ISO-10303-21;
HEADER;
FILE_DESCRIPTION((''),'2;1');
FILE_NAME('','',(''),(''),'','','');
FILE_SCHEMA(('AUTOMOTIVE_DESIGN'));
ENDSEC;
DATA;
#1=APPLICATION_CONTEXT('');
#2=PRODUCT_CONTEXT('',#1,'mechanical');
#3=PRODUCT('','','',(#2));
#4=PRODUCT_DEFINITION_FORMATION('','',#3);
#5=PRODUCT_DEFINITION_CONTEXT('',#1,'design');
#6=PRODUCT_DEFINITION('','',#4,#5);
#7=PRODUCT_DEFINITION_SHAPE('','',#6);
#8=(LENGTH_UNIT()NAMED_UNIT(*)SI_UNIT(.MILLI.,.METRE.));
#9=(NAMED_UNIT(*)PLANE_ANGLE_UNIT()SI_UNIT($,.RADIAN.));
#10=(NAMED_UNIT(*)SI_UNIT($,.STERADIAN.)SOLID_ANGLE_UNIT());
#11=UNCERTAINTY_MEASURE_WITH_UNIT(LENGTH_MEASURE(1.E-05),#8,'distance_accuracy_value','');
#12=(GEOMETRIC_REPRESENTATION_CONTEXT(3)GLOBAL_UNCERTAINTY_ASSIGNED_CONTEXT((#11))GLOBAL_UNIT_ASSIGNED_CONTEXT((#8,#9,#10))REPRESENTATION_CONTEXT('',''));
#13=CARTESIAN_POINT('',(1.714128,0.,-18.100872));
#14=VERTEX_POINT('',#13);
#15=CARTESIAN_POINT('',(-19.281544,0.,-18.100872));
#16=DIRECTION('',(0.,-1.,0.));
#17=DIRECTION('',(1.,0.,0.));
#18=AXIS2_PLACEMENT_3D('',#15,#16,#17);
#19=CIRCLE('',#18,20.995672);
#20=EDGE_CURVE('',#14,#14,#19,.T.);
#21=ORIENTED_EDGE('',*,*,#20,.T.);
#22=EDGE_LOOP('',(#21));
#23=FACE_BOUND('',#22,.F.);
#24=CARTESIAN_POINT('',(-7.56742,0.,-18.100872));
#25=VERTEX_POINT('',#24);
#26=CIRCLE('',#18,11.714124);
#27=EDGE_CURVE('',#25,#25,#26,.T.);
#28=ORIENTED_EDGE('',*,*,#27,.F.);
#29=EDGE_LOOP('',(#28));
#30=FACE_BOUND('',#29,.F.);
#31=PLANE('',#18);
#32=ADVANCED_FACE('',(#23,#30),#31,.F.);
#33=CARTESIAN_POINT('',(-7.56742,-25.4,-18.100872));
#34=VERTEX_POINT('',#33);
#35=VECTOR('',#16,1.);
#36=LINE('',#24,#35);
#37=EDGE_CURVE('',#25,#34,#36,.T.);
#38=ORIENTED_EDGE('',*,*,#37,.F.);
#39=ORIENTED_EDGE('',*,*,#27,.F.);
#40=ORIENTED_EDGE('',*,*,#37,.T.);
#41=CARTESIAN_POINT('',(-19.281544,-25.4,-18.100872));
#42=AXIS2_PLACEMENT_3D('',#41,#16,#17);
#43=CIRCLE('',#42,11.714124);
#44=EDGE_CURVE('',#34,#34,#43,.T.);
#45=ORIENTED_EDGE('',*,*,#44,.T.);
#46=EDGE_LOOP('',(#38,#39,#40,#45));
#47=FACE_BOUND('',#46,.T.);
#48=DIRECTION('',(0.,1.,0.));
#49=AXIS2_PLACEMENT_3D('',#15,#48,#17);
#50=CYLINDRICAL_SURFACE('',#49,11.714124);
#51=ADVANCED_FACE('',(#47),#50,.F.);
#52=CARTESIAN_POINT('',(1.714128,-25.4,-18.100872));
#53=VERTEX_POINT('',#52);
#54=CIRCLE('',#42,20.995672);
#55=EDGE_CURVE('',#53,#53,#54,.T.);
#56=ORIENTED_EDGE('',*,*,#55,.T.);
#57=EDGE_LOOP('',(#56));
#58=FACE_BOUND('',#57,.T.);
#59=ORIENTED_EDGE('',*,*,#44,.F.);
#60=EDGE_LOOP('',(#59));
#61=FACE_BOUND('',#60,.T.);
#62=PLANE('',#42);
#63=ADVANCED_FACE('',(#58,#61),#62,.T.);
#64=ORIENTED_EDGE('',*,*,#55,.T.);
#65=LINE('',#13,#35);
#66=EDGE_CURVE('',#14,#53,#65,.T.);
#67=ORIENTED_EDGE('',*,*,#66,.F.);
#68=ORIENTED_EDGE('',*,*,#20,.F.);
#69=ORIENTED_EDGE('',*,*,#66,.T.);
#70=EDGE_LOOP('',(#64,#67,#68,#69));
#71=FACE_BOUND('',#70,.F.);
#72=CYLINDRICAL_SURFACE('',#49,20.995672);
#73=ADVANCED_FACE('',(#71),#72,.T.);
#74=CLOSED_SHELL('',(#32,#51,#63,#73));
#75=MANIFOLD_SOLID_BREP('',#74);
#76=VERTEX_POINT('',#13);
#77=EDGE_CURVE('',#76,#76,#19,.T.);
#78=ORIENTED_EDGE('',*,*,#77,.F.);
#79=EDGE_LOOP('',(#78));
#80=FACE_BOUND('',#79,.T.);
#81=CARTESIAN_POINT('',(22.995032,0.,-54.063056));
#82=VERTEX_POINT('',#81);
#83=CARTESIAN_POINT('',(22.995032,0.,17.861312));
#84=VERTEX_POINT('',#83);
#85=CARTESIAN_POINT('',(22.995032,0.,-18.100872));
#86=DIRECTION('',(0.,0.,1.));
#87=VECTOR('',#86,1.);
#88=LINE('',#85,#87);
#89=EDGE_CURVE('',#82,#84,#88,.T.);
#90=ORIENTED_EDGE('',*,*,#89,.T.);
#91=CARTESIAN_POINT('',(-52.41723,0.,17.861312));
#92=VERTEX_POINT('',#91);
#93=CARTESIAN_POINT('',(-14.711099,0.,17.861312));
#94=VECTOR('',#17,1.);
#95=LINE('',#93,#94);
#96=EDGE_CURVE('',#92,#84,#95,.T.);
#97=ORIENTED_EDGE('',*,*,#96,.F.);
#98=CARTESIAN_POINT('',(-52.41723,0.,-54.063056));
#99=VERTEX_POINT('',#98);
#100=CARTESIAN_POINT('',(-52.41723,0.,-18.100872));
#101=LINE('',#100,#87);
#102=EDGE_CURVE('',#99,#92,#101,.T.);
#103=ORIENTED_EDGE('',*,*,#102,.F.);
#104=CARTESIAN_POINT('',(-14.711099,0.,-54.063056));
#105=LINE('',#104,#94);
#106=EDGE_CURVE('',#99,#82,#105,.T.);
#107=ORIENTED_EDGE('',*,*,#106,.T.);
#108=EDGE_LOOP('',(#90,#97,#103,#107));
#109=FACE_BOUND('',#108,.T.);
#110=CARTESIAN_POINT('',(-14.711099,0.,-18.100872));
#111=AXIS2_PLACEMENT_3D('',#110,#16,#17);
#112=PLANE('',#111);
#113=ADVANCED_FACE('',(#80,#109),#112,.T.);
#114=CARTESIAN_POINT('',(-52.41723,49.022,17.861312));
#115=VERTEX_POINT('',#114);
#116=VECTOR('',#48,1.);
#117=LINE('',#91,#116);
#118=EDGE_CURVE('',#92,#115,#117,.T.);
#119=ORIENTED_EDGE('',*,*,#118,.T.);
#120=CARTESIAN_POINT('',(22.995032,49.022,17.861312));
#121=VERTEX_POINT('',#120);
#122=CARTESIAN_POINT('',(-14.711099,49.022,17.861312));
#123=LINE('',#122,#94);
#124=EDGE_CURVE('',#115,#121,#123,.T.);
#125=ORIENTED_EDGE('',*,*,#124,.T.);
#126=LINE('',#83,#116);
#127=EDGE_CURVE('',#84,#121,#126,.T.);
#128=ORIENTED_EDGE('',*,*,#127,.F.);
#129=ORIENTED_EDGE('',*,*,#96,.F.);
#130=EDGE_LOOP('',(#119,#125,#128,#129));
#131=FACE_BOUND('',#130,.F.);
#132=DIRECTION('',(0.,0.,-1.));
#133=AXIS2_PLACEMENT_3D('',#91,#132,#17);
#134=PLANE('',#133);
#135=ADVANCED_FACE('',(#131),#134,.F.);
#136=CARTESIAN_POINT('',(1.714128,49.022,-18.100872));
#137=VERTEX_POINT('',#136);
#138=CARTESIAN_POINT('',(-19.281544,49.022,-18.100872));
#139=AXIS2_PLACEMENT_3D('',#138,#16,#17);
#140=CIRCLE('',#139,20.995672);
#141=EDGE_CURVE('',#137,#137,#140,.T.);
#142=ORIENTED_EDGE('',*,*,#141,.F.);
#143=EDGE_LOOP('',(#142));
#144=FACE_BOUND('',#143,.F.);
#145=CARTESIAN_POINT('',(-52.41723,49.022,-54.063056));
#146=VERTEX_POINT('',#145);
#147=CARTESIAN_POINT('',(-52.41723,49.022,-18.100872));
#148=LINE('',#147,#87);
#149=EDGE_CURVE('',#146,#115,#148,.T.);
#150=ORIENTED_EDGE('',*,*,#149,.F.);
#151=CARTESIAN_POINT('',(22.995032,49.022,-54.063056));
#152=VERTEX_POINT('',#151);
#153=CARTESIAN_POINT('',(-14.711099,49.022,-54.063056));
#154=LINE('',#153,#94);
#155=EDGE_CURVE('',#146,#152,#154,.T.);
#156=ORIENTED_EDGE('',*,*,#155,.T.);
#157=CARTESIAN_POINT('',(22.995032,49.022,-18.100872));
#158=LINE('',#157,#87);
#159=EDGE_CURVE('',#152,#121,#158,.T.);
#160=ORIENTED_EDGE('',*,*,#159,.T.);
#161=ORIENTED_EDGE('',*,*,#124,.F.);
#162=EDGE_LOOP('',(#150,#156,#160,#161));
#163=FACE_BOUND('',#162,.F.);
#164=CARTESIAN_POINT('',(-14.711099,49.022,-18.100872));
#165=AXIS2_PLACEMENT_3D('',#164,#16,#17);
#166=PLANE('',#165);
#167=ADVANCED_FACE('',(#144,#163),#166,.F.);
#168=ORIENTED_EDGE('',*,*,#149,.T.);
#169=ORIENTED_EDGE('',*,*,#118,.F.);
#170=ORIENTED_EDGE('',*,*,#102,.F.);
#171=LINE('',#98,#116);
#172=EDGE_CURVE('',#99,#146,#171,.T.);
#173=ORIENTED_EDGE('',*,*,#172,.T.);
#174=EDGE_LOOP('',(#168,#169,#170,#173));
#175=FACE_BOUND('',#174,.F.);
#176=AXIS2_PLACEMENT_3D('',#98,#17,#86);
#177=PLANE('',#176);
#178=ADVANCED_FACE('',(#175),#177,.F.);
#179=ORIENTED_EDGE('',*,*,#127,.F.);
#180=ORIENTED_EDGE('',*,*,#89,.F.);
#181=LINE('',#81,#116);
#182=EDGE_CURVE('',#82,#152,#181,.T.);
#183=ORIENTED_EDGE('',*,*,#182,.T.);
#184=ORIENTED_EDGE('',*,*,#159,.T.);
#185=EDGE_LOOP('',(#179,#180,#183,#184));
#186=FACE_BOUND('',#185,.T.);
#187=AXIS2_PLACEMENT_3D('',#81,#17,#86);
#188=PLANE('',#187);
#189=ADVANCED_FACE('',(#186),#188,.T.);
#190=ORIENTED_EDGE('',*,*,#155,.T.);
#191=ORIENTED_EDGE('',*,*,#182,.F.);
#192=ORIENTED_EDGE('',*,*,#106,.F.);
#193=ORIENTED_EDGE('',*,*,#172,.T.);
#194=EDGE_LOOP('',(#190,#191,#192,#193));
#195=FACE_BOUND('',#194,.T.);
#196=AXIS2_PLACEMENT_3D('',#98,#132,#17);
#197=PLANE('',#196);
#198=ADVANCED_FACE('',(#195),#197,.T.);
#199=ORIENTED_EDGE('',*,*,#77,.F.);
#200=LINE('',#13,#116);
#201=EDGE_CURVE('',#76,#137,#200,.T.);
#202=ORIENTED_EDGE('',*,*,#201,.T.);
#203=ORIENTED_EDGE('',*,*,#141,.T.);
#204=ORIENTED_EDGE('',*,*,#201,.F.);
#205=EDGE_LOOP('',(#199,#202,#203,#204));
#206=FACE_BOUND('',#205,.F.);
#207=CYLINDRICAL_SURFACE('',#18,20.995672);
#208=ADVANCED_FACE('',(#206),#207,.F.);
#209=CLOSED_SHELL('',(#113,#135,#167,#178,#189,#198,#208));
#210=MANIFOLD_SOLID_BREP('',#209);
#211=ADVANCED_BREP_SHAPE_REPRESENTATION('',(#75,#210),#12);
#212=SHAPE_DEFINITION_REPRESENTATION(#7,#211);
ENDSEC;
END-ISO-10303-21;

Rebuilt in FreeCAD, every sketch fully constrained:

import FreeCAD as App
import Part
import Sketcher

V = App.Vector
Q = App.Units.Quantity

doc = App.newDocument("Part")
body = doc.addObject("PartDesign::Body", "Body")

# Sketch on XZ plane
sketch1 = doc.addObject("Sketcher::SketchObject", "Sketch")
body.addObject(sketch1)
sketch1.AttachmentSupport = (doc.XZ_Plane, [""])
sketch1.MapMode = "FlatFace"
sketch1.addGeometry([
    Part.LineSegment(V(-52, 18, 0), V(-52, -54, 0)),  # 0
    Part.LineSegment(V(-52, -54, 0), V(23, -54, 0)),  # 1
    Part.LineSegment(V(23, -54, 0), V(23, 18, 0)),  # 2
    Part.LineSegment(V(23, 18, 0), V(-52, 18, 0)),  # 3
    Part.Circle(V(-19, -18, 0), V(0, 0, 1), 21),  # 4
], False)
sketch1.addConstraint([
    Sketcher.Constraint("Coincident", 0, 2, 1, 1),
    Sketcher.Constraint("Coincident", 1, 2, 2, 1),
    Sketcher.Constraint("Coincident", 2, 2, 3, 1),
    Sketcher.Constraint("Coincident", 3, 2, 0, 1),
    Sketcher.Constraint("Vertical", 0),
    Sketcher.Constraint("Horizontal", 1),
    Sketcher.Constraint("Vertical", 2),
    Sketcher.Constraint("Horizontal", 3),
    Sketcher.Constraint("Diameter", 4, Q("41.991344 mm")),
    Sketcher.Constraint("DistanceX", 1, 1, 1, 2, Q("75.412262 mm")),
    Sketcher.Constraint("DistanceY", 0, 2, 0, 1, Q("71.924368 mm")),
    Sketcher.Constraint("DistanceY", 4, 3, -1, 1, Q("18.100872 mm")),
    Sketcher.Constraint("DistanceX", 0, 2, -1, 1, Q("52.41723 mm")),
    Sketcher.Constraint("DistanceX", 4, 3, -1, 1, Q("19.281544 mm")),
    Sketcher.Constraint("DistanceY", 0, 2, -1, 1, Q("54.063056 mm")),
])
pad1 = doc.addObject("PartDesign::Pad", "Pad")
body.addObject(pad1)
pad1.Profile = sketch1
pad1.Length = Q("1.93 in")
pad1.Reversed = True

# Sketch on XZ plane
sketch2 = doc.addObject("Sketcher::SketchObject", "Sketch001")
body.addObject(sketch2)
sketch2.AttachmentSupport = (doc.XZ_Plane, [""])
sketch2.MapMode = "FlatFace"
sketch2.addGeometry(Part.Circle(V(-19, -18, 0), V(0, 0, 1), 12), False)
sketch2.addConstraint([
    Sketcher.Constraint("Diameter", 0, Q("23.428248 mm")),
    Sketcher.Constraint("DistanceY", 0, 3, -1, 1, Q("18.100872 mm")),
    Sketcher.Constraint("DistanceX", 0, 3, -1, 1, Q("19.281544 mm")),
])
pocket1 = doc.addObject("PartDesign::Pocket", "Pocket")
body.addObject(pocket1)
pocket1.Profile = sketch2
pocket1.Type = "ThroughAll"
body2 = doc.addObject("PartDesign::Body", "Body001")

# Sketch on XZ plane
sketch3 = doc.addObject("Sketcher::SketchObject", "Sketch002")
body2.addObject(sketch3)
sketch3.AttachmentSupport = (doc.getObject("XZ_Plane001"), [""])
sketch3.MapMode = "FlatFace"
sketch3.addGeometry([
    Part.Circle(V(-19, -18, 0), V(0, 0, 1), 21),
    Part.Circle(V(-19, -18, 0), V(0, 0, 1), 12),
], False)
sketch3.addConstraint([
    Sketcher.Constraint("Coincident", 1, 3, 0, 3),
    Sketcher.Constraint("Diameter", 1, Q("23.428248 mm")),
    Sketcher.Constraint("Diameter", 0, Q("41.991344 mm")),
    Sketcher.Constraint("DistanceY", 0, 3, -1, 1, Q("18.100872 mm")),
    Sketcher.Constraint("DistanceX", 0, 3, -1, 1, Q("19.281544 mm")),
])
pad2 = doc.addObject("PartDesign::Pad", "Pad001")
body2.addObject(pad2)
pad2.Profile = sketch3
pad2.Length = Q("1 in")

doc.recompute()
